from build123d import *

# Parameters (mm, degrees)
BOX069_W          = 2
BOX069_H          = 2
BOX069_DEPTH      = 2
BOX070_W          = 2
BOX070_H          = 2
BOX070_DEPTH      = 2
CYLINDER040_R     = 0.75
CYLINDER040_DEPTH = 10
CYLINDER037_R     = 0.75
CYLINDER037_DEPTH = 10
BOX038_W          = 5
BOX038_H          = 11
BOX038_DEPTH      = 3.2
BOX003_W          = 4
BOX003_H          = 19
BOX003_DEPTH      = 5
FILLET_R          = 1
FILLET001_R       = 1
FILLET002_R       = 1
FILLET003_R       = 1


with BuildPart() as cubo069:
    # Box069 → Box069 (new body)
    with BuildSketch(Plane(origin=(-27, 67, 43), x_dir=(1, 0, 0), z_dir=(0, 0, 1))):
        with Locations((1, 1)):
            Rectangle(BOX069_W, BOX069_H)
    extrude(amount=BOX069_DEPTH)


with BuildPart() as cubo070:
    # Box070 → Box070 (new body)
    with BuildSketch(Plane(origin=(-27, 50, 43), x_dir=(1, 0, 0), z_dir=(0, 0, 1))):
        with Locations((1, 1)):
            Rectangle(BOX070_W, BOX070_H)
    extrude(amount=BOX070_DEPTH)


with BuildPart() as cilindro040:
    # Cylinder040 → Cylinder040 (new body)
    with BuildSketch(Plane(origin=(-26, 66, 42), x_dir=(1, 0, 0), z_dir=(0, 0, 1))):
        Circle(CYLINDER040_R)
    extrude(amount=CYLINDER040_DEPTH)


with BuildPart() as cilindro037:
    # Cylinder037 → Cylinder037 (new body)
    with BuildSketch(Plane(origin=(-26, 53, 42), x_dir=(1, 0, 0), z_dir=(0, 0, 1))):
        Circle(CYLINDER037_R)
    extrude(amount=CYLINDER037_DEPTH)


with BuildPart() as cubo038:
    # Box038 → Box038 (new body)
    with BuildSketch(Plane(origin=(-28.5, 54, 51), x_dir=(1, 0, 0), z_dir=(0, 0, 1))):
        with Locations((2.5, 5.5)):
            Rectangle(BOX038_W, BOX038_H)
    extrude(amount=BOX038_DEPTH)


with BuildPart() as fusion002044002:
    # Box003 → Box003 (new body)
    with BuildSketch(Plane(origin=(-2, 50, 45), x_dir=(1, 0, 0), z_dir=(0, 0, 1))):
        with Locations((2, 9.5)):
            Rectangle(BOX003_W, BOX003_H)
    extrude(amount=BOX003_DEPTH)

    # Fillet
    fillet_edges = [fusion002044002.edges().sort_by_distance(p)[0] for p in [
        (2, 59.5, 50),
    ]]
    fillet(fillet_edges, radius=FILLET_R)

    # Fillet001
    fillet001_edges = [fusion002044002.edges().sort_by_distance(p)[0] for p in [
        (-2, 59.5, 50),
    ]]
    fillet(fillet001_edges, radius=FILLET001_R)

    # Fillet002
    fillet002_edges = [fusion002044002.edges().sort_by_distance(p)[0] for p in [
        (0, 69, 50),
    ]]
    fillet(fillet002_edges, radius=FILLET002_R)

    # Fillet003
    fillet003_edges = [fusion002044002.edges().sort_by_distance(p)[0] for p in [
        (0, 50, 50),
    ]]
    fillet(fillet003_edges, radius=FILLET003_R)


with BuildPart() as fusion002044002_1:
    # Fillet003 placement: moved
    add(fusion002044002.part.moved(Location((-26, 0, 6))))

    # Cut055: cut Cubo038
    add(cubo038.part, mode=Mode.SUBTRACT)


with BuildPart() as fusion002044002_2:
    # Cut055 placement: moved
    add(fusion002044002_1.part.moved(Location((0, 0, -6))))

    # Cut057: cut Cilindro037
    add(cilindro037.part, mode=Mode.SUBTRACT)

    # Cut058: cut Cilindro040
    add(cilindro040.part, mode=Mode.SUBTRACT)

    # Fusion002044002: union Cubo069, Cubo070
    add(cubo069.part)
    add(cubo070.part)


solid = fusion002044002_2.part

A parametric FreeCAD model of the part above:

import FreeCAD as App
import Part
import Sketcher
Q = App.Units.Quantity


def edges_at(feature, points):
    """Names of the edges that pass closest to the given points."""
    edges = feature.Shape.Edges
    near = lambda p: min(range(len(edges)), key=lambda i: edges[i].distToShape(Part.Vertex(*p))[0])
    return sorted({f"Edge{near(p) + 1}" for p in points})

doc = App.newDocument("Part")
body = doc.addObject("PartDesign::Body", "Body")

# Sketch on XY plane
sketch1 = body.newObject("Sketcher::SketchObject", "Sketch")
sketch1.AttachmentSupport = (doc.getObject("XY_Plane"), [""])
sketch1.MapMode = "FlatFace"
sketch1.AttachmentOffset = App.Placement(App.Vector(0, 0, 43), App.Rotation())
sketch1.addGeometry([
    Part.LineSegment(App.Vector(-27, 69, 0), App.Vector(-27, 67, 0)),
    Part.LineSegment(App.Vector(-27, 67, 0), App.Vector(-25, 67, 0)),
    Part.LineSegment(App.Vector(-25, 67, 0), App.Vector(-25, 69, 0)),
    Part.LineSegment(App.Vector(-25, 69, 0), App.Vector(-27, 69, 0)),
], False)
sketch1.addConstraint([
    Sketcher.Constraint("Coincident", 0, 2, 1, 1),
    Sketcher.Constraint("Coincident", 1, 2, 2, 1),
    Sketcher.Constraint("Coincident", 2, 2, 3, 1),
    Sketcher.Constraint("Coincident", 3, 2, 0, 1),
    Sketcher.Constraint("Vertical", 0),
    Sketcher.Constraint("Horizontal", 1),
    Sketcher.Constraint("Vertical", 2),
    Sketcher.Constraint("Horizontal", 3),
    Sketcher.Constraint("Equal", 3, 0),
    Sketcher.Constraint("DistanceX", 1, 1, 1, 2, Q("2 mm")),
    Sketcher.Constraint("DistanceX", 0, 2, -1, 1, Q("27 mm")),
    Sketcher.Constraint("DistanceY", -1, 1, 0, 2, Q("67 mm")),
])
pad1 = body.newObject("PartDesign::Pad", "Pad")
pad1.Profile = sketch1
pad1.Length = 2
body2 = doc.addObject("PartDesign::Body", "Body001")

# Sketch on XY plane
sketch2 = body2.newObject("Sketcher::SketchObject", "Sketch001")
sketch2.AttachmentSupport = (doc.getObject("XY_Plane001"), [""])
sketch2.MapMode = "FlatFace"
sketch2.AttachmentOffset = App.Placement(App.Vector(0, 0, 43), App.Rotation())
sketch2.addGeometry([
    Part.LineSegment(App.Vector(-27, 52, 0), App.Vector(-27, 50, 0)),
    Part.LineSegment(App.Vector(-27, 50, 0), App.Vector(-25, 50, 0)),
    Part.LineSegment(App.Vector(-25, 50, 0), App.Vector(-25, 52, 0)),
    Part.LineSegment(App.Vector(-25, 52, 0), App.Vector(-27, 52, 0)),
], False)
sketch2.addConstraint([
    Sketcher.Constraint("Coincident", 0, 2, 1, 1),
    Sketcher.Constraint("Coincident", 1, 2, 2, 1),
    Sketcher.Constraint("Coincident", 2, 2, 3, 1),
    Sketcher.Constraint("Coincident", 3, 2, 0, 1),
    Sketcher.Constraint("Vertical", 0),
    Sketcher.Constraint("Horizontal", 1),
    Sketcher.Constraint("Vertical", 2),
    Sketcher.Constraint("Horizontal", 3),
    Sketcher.Constraint("Equal", 3, 0),
    Sketcher.Constraint("DistanceX", 1, 1, 1, 2, Q("2 mm")),
    Sketcher.Constraint("DistanceX", 0, 2, -1, 1, Q("27 mm")),
    Sketcher.Constraint("DistanceY", -1, 1, 0, 2, Q("50 mm")),
])
pad2 = body2.newObject("PartDesign::Pad", "Pad001")
pad2.Profile = sketch2
pad2.Length = 2
body3 = doc.addObject("PartDesign::Body", "Body002")

# Sketch on XY plane
sketch3 = body3.newObject("Sketcher::SketchObject", "Sketch002")
sketch3.AttachmentSupport = (doc.getObject("XY_Plane002"), [""])
sketch3.MapMode = "FlatFace"
sketch3.AttachmentOffset = App.Placement(App.Vector(0, 0, 42), App.Rotation())
sketch3.addGeometry(Part.Circle(App.Vector(-26, 66, 0), App.Vector(0, 0, 1), 0.8), False)
sketch3.addConstraint([
    Sketcher.Constraint("Diameter", 0, Q("1.5 mm")),
    Sketcher.Constraint("DistanceX", 0, 3, -1, 1, Q("26 mm")),
    Sketcher.Constraint("DistanceY", -1, 1, 0, 3, Q("66 mm")),
])
pad3 = body3.newObject("PartDesign::Pad", "Pad002")
pad3.Profile = sketch3
pad3.Length = 10
body4 = doc.addObject("PartDesign::Body", "Body003")

# Sketch on XY plane
sketch4 = body4.newObject("Sketcher::SketchObject", "Sketch003")
sketch4.AttachmentSupport = (doc.getObject("XY_Plane003"), [""])
sketch4.MapMode = "FlatFace"
sketch4.AttachmentOffset = App.Placement(App.Vector(0, 0, 42), App.Rotation())
sketch4.addGeometry(Part.Circle(App.Vector(-26, 53, 0), App.Vector(0, 0, 1), 0.8), False)
sketch4.addConstraint([
    Sketcher.Constraint("Diameter", 0, Q("1.5 mm")),
    Sketcher.Constraint("DistanceX", 0, 3, -1, 1, Q("26 mm")),
    Sketcher.Constraint("DistanceY", -1, 1, 0, 3, Q("53 mm")),
])
pad4 = body4.newObject("PartDesign::Pad", "Pad003")
pad4.Profile = sketch4
pad4.Length = 10
body5 = doc.addObject("PartDesign::Body", "Body004")

# Sketch on XY plane
sketch5 = body5.newObject("Sketcher::SketchObject", "Sketch004")
sketch5.AttachmentSupport = (doc.getObject("XY_Plane004"), [""])
sketch5.MapMode = "FlatFace"
sketch5.AttachmentOffset = App.Placement(App.Vector(0, 0, 51), App.Rotation())
sketch5.addGeometry([
    Part.LineSegment(App.Vector(-28, 65, 0), App.Vector(-28, 54, 0)),
    Part.LineSegment(App.Vector(-28, 54, 0), App.Vector(-24, 54, 0)),
    Part.LineSegment(App.Vector(-24, 54, 0), App.Vector(-24, 65, 0)),
    Part.LineSegment(App.Vector(-24, 65, 0), App.Vector(-28, 65, 0)),
], False)
sketch5.addConstraint([
    Sketcher.Constraint("Coincident", 0, 2, 1, 1),
    Sketcher.Constraint("Coincident", 1, 2, 2, 1),
    Sketcher.Constraint("Coincident", 2, 2, 3, 1),
    Sketcher.Constraint("Coincident", 3, 2, 0, 1),
    Sketcher.Constraint("Vertical", 0),
    Sketcher.Constraint("Horizontal", 1),
    Sketcher.Constraint("Vertical", 2),
    Sketcher.Constraint("Horizontal", 3),
    Sketcher.Constraint("DistanceX", 1, 1, 1, 2, Q("5 mm")),
    Sketcher.Constraint("DistanceY", 0, 2, 0, 1, Q("11 mm")),
    Sketcher.Constraint("DistanceY", -1, 1, 0, 2, Q("54 mm")),
    Sketcher.Constraint("DistanceX", 0, 2, -1, 1, Q("28.5 mm")),
])
pad5 = body5.newObject("PartDesign::Pad", "Pad004")
pad5.Profile = sketch5
pad5.Length = 3.2
body6 = doc.addObject("PartDesign::Body", "Body005")

# Sketch on XY plane
sketch6 = body6.newObject("Sketcher::SketchObject", "Sketch005")
sketch6.AttachmentSupport = (doc.getObject("XY_Plane005"), [""])
sketch6.MapMode = "FlatFace"
sketch6.AttachmentOffset = App.Placement(App.Vector(0, 0, 45), App.Rotation())
sketch6.addGeometry([
    Part.LineSegment(App.Vector(-2, 69, 0), App.Vector(-2, 50, 0)),
    Part.LineSegment(App.Vector(-2, 50, 0), App.Vector(2, 50, 0)),
    Part.LineSegment(App.Vector(2, 50, 0), App.Vector(2, 69, 0)),
    Part.LineSegment(App.Vector(2, 69, 0), App.Vector(-2, 69, 0)),
], False)
sketch6.addConstraint([
    Sketcher.Constraint("Coincident", 0, 2, 1, 1),
    Sketcher.Constraint("Coincident", 1, 2, 2, 1),
    Sketcher.Constraint("Coincident", 2, 2, 3, 1),
    Sketcher.Constraint("Coincident", 3, 2, 0, 1),
    Sketcher.Constraint("Vertical", 0),
    Sketcher.Constraint("Horizontal", 1),
    Sketcher.Constraint("Vertical", 2),
    Sketcher.Constraint("Horizontal", 3),
    Sketcher.Constraint("DistanceX", 1, 1, 1, 2, Q("4 mm")),
    Sketcher.Constraint("DistanceY", 0, 2, 0, 1, Q("19 mm")),
    Sketcher.Constraint("DistanceX", 0, 2, -1, 1, Q("2 mm")),
    Sketcher.Constraint("DistanceY", -1, 1, 0, 2, Q("50 mm")),
])
pad6 = body6.newObject("PartDesign::Pad", "Pad005")
pad6.Profile = sketch6
pad6.Length = 5
doc.recompute()

fillet = body6.newObject("PartDesign::Fillet", "Fillet")
fillet.Base = (pad6, edges_at(pad6, [(2, 59.5, 50)]))
fillet.Radius = 1
doc.recompute()

fillet2 = body6.newObject("PartDesign::Fillet", "Fillet001")
fillet2.Base = (fillet, edges_at(fillet, [(-2, 59.5, 50)]))
fillet2.Radius = 1
doc.recompute()

fillet3 = body6.newObject("PartDesign::Fillet", "Fillet002")
fillet3.Base = (fillet2, edges_at(fillet2, [(0, 69, 50)]))
fillet3.Radius = 1
doc.recompute()

fillet4 = body6.newObject("PartDesign::Fillet", "Fillet003")
fillet4.Base = (fillet3, edges_at(fillet3, [(0, 50, 50)]))
fillet4.Radius = 1
body7 = doc.addObject("PartDesign::Body", "Body006")
doc.recompute()

body6.Placement = App.Placement(App.Vector(-26, 0, 6), App.Rotation(App.Vector(0, 0, 1), 0))
boolean = body7.newObject("PartDesign::Boolean", "Boolean")
boolean.Type = "Fuse"
boolean.addObjects([body6])
doc.recompute()

boolean2 = body7.newObject("PartDesign::Boolean", "Boolean001")
boolean2.Type = "Cut"
boolean2.addObjects([body5])
body8 = doc.addObject("PartDesign::Body", "Body007")
doc.recompute()

body7.Placement = App.Placement(App.Vector(0, 0, -6), App.Rotation(App.Vector(0, 0, 1), 0))
boolean3 = body8.newObject("PartDesign::Boolean", "Boolean002")
boolean3.Type = "Fuse"
boolean3.addObjects([body7])
doc.recompute()

boolean4 = body8.newObject("PartDesign::Boolean", "Boolean003")
boolean4.Type = "Cut"
boolean4.addObjects([body4])
doc.recompute()

boolean5 = body8.newObject("PartDesign::Boolean", "Boolean004")
boolean5.Type = "Cut"
boolean5.addObjects([body3])
doc.recompute()

boolean6 = body8.newObject("PartDesign::Boolean", "Boolean005")
boolean6.Type = "Fuse"
boolean6.addObjects([body])
doc.recompute()

boolean7 = body8.newObject("PartDesign::Boolean", "Boolean006")
boolean7.Type = "Fuse"
boolean7.addObjects([body2])

doc.recompute()
